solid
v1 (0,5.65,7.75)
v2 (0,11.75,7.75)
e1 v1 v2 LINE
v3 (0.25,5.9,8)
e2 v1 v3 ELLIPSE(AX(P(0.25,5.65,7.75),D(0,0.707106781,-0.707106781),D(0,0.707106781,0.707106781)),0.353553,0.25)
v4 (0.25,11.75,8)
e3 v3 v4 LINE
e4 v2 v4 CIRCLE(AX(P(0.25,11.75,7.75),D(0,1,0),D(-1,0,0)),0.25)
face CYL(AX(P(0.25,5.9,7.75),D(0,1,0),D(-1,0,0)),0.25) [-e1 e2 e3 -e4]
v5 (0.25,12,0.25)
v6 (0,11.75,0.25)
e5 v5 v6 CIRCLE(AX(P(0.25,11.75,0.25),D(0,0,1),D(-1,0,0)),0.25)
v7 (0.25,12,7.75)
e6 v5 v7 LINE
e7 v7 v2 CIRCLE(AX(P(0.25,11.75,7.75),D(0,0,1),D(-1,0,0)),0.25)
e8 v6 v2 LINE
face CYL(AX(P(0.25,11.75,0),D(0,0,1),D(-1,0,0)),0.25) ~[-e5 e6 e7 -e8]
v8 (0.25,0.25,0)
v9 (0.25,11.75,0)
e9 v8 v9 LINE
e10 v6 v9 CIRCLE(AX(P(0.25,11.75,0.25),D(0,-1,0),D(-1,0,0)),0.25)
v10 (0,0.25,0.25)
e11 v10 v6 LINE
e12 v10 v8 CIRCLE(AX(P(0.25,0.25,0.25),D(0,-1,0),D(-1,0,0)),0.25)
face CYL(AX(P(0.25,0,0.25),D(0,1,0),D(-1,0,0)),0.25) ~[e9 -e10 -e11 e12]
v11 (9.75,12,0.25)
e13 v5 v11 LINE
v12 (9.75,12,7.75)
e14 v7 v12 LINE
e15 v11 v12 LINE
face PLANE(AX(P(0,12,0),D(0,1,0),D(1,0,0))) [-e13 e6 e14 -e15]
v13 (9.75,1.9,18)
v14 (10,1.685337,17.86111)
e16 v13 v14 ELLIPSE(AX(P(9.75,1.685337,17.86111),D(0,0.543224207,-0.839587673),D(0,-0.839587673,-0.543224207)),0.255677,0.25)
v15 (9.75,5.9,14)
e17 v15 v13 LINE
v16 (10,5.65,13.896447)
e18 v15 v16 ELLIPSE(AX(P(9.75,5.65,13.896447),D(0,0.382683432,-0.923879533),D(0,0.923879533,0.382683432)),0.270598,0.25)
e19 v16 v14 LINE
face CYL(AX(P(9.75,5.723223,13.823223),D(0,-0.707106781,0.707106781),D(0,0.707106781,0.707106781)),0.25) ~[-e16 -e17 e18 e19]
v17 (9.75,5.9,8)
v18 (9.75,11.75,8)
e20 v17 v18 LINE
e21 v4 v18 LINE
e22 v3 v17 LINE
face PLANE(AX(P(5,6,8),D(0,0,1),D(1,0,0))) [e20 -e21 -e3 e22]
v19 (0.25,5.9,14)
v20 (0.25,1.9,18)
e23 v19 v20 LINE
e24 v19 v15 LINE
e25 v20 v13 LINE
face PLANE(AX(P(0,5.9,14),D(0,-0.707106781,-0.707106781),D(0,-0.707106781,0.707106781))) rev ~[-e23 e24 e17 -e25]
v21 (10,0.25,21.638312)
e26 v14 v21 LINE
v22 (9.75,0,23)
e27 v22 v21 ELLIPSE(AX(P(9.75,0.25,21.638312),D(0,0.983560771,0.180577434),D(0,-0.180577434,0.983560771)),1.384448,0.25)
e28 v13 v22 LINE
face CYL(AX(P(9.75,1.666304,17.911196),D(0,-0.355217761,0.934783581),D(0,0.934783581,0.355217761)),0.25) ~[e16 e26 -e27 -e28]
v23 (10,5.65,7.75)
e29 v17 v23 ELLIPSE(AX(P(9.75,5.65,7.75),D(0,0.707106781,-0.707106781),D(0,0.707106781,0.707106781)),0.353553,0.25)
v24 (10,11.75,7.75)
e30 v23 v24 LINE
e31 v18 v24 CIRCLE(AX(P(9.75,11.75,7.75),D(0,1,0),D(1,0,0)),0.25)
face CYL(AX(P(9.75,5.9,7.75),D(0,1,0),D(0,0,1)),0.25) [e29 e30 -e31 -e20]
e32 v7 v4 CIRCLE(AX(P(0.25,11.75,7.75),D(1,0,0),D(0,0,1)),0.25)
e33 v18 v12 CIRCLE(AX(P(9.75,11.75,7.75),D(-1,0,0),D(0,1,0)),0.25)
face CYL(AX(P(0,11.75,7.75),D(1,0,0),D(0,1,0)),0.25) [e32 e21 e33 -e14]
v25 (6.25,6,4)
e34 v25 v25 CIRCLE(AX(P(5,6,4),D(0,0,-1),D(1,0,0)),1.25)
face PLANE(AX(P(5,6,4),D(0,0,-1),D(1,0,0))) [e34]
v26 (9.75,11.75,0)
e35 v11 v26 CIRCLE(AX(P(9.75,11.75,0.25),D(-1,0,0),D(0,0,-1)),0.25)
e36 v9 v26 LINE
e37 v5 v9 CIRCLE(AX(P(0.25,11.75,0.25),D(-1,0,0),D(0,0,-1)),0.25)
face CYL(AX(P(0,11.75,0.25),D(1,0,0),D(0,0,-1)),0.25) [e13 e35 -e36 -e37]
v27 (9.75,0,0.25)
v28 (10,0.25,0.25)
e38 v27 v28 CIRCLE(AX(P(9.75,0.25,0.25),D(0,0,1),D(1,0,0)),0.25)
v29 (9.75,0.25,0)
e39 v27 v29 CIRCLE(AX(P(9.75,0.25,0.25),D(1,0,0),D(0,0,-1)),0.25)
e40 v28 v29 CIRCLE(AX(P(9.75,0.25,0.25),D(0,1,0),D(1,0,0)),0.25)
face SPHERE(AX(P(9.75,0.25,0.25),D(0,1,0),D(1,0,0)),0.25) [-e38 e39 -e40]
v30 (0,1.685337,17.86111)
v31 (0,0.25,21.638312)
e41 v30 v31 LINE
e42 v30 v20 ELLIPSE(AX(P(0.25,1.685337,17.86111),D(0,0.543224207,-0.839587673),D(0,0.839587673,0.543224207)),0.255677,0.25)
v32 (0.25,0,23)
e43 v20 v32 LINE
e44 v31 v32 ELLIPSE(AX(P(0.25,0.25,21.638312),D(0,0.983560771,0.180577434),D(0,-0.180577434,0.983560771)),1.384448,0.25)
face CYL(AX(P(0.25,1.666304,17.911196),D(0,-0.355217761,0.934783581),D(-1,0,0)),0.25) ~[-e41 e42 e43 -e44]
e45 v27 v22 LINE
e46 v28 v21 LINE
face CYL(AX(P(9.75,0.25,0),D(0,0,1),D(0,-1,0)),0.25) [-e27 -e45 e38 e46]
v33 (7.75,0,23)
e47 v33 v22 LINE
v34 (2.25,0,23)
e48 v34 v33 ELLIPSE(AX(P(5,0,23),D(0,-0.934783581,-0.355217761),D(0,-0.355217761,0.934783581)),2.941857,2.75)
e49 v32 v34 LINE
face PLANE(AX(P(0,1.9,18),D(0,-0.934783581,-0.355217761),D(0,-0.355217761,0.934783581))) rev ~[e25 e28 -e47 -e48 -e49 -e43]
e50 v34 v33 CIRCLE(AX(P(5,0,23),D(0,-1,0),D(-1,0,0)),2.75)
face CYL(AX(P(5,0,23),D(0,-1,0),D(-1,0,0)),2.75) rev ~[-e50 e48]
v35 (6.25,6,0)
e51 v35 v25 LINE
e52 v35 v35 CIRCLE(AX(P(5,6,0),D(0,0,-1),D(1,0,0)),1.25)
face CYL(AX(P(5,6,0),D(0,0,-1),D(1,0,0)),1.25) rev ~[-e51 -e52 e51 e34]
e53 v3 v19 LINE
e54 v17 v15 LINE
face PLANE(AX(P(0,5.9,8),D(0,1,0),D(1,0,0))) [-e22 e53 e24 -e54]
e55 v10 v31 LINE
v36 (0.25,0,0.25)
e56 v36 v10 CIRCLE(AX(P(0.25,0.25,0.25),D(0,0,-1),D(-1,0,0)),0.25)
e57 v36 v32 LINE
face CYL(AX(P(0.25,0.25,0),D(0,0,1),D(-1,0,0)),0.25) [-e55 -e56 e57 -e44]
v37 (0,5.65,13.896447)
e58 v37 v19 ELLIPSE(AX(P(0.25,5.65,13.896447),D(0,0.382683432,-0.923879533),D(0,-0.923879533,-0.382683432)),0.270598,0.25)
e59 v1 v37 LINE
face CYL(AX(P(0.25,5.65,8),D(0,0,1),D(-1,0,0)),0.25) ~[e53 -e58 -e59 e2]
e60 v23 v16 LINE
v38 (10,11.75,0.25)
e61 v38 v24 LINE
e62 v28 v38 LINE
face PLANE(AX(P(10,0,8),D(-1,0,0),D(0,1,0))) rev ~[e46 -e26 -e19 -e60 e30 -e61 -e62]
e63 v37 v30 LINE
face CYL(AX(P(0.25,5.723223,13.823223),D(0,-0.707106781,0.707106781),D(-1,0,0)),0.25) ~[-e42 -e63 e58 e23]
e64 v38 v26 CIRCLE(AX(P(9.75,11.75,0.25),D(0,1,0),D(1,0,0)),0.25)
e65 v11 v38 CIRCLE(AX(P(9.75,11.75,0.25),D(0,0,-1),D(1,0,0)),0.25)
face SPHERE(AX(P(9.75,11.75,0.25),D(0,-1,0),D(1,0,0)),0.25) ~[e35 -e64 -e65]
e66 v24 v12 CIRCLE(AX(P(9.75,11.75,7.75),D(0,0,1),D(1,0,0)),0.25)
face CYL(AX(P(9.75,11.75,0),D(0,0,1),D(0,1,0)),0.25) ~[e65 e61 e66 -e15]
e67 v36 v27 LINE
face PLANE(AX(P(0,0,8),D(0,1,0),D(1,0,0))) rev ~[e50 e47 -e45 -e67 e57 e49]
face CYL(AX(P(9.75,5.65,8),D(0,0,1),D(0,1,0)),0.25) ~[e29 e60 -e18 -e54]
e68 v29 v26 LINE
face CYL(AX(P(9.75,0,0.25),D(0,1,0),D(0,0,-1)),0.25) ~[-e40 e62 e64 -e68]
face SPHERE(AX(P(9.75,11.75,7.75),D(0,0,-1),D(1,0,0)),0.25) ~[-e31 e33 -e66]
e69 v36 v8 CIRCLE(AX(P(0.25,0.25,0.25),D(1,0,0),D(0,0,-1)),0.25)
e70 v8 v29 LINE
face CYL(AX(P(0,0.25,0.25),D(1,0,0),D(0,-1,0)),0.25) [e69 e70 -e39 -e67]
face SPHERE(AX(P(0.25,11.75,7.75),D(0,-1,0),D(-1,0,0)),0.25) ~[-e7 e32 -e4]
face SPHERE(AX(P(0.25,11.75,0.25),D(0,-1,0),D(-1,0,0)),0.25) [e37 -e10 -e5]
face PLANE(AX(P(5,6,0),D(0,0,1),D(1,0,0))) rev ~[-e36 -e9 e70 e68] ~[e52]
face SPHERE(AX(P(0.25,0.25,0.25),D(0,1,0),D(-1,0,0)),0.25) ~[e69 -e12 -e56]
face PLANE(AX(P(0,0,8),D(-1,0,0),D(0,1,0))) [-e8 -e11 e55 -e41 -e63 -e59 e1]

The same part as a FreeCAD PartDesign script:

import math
import FreeCAD as App
import Part
import Sketcher
Q = App.Units.Quantity


def edges_at(feature, points):
    """Names of the edges that pass closest to the given points."""
    edges = feature.Shape.Edges
    near = lambda p: min(range(len(edges)), key=lambda i: edges[i].distToShape(Part.Vertex(*p))[0])
    return sorted({f"Edge{near(p) + 1}" for p in points})


def add_polygon(sketch, points):
    """Adds a closed chain of lines whose ends are joined by coincident constraints."""
    first, n = sketch.GeometryCount, len(points)
    for a, b in zip(points, points[1:] + points[:1]):
        sketch.addGeometry(Part.LineSegment(App.Vector(*a, 0), App.Vector(*b, 0)), False)
    for i in range(n):
        sketch.addConstraint(Sketcher.Constraint("Coincident", first + i, 2, first + (i + 1) % n, 1))

doc = App.newDocument("Part")
params = doc.addObject("Spreadsheet::Sheet", "Params")
for row, (alias, value) in enumerate([
    ("sketch1_width", "10 mm"),
    ("sketch1_height", "12 mm"),
    ("pad1_length", "8 mm"),
    ("sketch2_width", "10 mm"),
    ("sketch2_height", "5.9 mm"),
    ("pad2_length", "15 mm"),
    ("sketch3_height", "9 mm"),
    ("sketch3_width", "5.9 mm"),
    ("sketch4_radius", "2.75 mm"),
    ("pocket2_length", "25 mm"),
    ("fillet_radius", "0.25 mm"),
    ("sketch5_diameter", "2.5 mm"),
    ("pocket3_length", "4 mm"),
], start=1):
    params.set(f"A{row}", alias)
    params.set(f"B{row}", "=" + value)
    params.setAlias(f"B{row}", alias)

body = doc.addObject("PartDesign::Body", "Body")

# Sketch on XY plane
sketch1 = doc.addObject("Sketcher::SketchObject", "Sketch")
body.addObject(sketch1)
sketch1.AttachmentSupport = (doc.XY_Plane, [""])
sketch1.MapMode = "FlatFace"
add_polygon(sketch1, [(0, 12), (0, 0), (10, 0), (10, 12)])  # lines 0-3
sketch1.addConstraint(Sketcher.Constraint("Vertical", 0))
sketch1.addConstraint(Sketcher.Constraint("Horizontal", 1))
sketch1.addConstraint(Sketcher.Constraint("Vertical", 2))
sketch1.addConstraint(Sketcher.Constraint("Horizontal", 3))
sketch1.addConstraint(Sketcher.Constraint("Coincident", 0, 2, -1, 1))
sketch1.addConstraint(Sketcher.Constraint("DistanceX", 1, 1, 1, 2, Q("10 mm")))
sketch1.addConstraint(Sketcher.Constraint("DistanceY", 0, 2, 0, 1, Q("12 mm")))
sketch1.setExpression("Constraints[9]", "Params.sketch1_width")
sketch1.setExpression("Constraints[10]", "Params.sketch1_height")
pad1 = doc.addObject("PartDesign::Pad", "Pad")
body.addObject(pad1)
pad1.Profile = sketch1
pad1.setExpression("Length", "Params.pad1_length")

# Sketch on XY plane
sketch2 = doc.addObject("Sketcher::SketchObject", "Sketch001")
body.addObject(sketch2)
sketch2.AttachmentSupport = (doc.XY_Plane, [""])
sketch2.MapMode = "FlatFace"
sketch2.AttachmentOffset = App.Placement(App.Vector(0, 0, 8), App.Rotation())
add_polygon(sketch2, [(0, 6), (0, 0), (10, 0), (10, 6)])  # lines 0-3
sketch2.addConstraint(Sketcher.Constraint("Vertical", 0))
sketch2.addConstraint(Sketcher.Constraint("Horizontal", 1))
sketch2.addConstraint(Sketcher.Constraint("Vertical", 2))
sketch2.addConstraint(Sketcher.Constraint("Horizontal", 3))
sketch2.addConstraint(Sketcher.Constraint("Coincident", 0, 2, -1, 1))
sketch2.addConstraint(Sketcher.Constraint("DistanceX", 1, 1, 1, 2, Q("10 mm")))
sketch2.addConstraint(Sketcher.Constraint("DistanceY", 0, 2, 0, 1, Q("5.9 mm")))
sketch2.setExpression("Constraints[9]", "Params.sketch2_width")
sketch2.setExpression("Constraints[10]", "Params.sketch2_height")
pad2 = doc.addObject("PartDesign::Pad", "Pad001")
body.addObject(pad2)
pad2.Profile = sketch2
pad2.setExpression("Length", "Params.pad2_length")

# Sketch on YZ plane
sketch3 = doc.addObject("Sketcher::SketchObject", "Sketch002")
body.addObject(sketch3)
sketch3.AttachmentSupport = (doc.YZ_Plane, [""])
sketch3.MapMode = "FlatFace"
add_polygon(sketch3, [(6, 14), (2, 18), (0, 23), (6, 23)])  # lines 0-3
sketch3.addConstraint(Sketcher.Constraint("Horizontal", 2))
sketch3.addConstraint(Sketcher.Constraint("Vertical", 3))
sketch3.addConstraint(Sketcher.Constraint("PointOnObject", 1, 2, -2))
sketch3.addConstraint(Sketcher.Constraint("DistanceY", 3, 2, 3, 1, Q("9 mm")))
sketch3.addConstraint(Sketcher.Constraint("Angle", 0, Q("135 deg")))
sketch3.addConstraint(Sketcher.Constraint("DistanceX", 2, 1, 2, 2, Q("5.9 mm")))
sketch3.addConstraint(Sketcher.Constraint("DistanceY", -1, 1, 0, 2, Q("18 mm")))
sketch3.addConstraint(Sketcher.Constraint("DistanceY", -1, 1, 1, 2, Q("23 mm")))
sketch3.setExpression("Constraints[7]", "Params.sketch3_height")
sketch3.setExpression("Constraints[9]", "Params.sketch3_width")
pocket1 = doc.addObject("PartDesign::Pocket", "Pocket")
body.addObject(pocket1)
pocket1.Profile = sketch3
pocket1.Type = "ThroughAll"
pocket1.Reversed = True

# Sketch on XZ plane
sketch4 = doc.addObject("Sketcher::SketchObject", "Sketch003")
body.addObject(sketch4)
sketch4.AttachmentSupport = (doc.XZ_Plane, [""])
sketch4.MapMode = "FlatFace"
sketch4.addGeometry(Part.ArcOfCircle(Part.Circle(App.Vector(5, 23, 0), App.Vector(0, 0, 1), 2.8), math.radians(180), math.radians(360)), False)
sketch4.addGeometry(Part.LineSegment(App.Vector(7.8, 23, 0), App.Vector(2.2, 23, 0)), False)
sketch4.addConstraint(Sketcher.Constraint("Coincident", 0, 1, 1, 2))
sketch4.addConstraint(Sketcher.Constraint("Coincident", 1, 1, 0, 2))
sketch4.addConstraint(Sketcher.Constraint("Horizontal", 1))
sketch4.addConstraint(Sketcher.Constraint("Radius", 0, Q("2.75 mm")))
sketch4.addConstraint(Sketcher.Constraint("DistanceX", -1, 1, 0, 3, Q("5 mm")))
sketch4.addConstraint(Sketcher.Constraint("DistanceY", -1, 1, 0, 3, Q("23 mm")))
sketch4.addConstraint(Sketcher.Constraint("DistanceY", -1, 1, 0, 1, Q("23 mm")))
sketch4.setExpression("Constraints[3]", "Params.sketch4_radius")
pocket2 = doc.addObject("PartDesign::Pocket", "Pocket001")
body.addObject(pocket2)
pocket2.Profile = sketch4
pocket2.setExpression("Length", "Params.pocket2_length")
doc.recompute()

fillet = doc.addObject("PartDesign::Fillet", "Fillet")
body.addObject(fillet)
fillet.Base = (pocket2, edges_at(pocket2, [
    (10, 6, 0),
    (10, 12, 4),
    (10, 8.95, 8),
    (10, 5.9, 11),
    (10, 3.9, 16),
    (10, 0.95, 20.5),
    (10, 0, 11.5),
    (0, 6, 0),
    (0, 0, 11.5),
    (0, 0.95, 20.5),
    (0, 3.9, 16),
    (0, 5.9, 11),
    (0, 8.95, 8),
    (0, 12, 4),
    (5, 12, 0),
    (5, 12, 8),
    (5, 0, 0),
]))
fillet.setExpression("Radius", "Params.fillet_radius")

# Sketch on XY plane
sketch5 = doc.addObject("Sketcher::SketchObject", "Sketch004")
body.addObject(sketch5)
sketch5.AttachmentSupport = (doc.XY_Plane, [""])
sketch5.MapMode = "FlatFace"
sketch5.addGeometry(Part.Circle(App.Vector(5, 6, 0), App.Vector(0, 0, 1), 1.2), False)
sketch5.addConstraint(Sketcher.Constraint("Diameter", 0, Q("2.5 mm")))
sketch5.addConstraint(Sketcher.Constraint("DistanceX", -1, 1, 0, 3, Q("5 mm")))
sketch5.addConstraint(Sketcher.Constraint("DistanceY", -1, 1, 0, 3, Q("6 mm")))
sketch5.setExpression("Constraints[0]", "Params.sketch5_diameter")
pocket3 = doc.addObject("PartDesign::Pocket", "Pocket002")
body.addObject(pocket3)
pocket3.Profile = sketch5
pocket3.setExpression("Length", "Params.pocket3_length")
pocket3.Reversed = True

doc.recompute()
